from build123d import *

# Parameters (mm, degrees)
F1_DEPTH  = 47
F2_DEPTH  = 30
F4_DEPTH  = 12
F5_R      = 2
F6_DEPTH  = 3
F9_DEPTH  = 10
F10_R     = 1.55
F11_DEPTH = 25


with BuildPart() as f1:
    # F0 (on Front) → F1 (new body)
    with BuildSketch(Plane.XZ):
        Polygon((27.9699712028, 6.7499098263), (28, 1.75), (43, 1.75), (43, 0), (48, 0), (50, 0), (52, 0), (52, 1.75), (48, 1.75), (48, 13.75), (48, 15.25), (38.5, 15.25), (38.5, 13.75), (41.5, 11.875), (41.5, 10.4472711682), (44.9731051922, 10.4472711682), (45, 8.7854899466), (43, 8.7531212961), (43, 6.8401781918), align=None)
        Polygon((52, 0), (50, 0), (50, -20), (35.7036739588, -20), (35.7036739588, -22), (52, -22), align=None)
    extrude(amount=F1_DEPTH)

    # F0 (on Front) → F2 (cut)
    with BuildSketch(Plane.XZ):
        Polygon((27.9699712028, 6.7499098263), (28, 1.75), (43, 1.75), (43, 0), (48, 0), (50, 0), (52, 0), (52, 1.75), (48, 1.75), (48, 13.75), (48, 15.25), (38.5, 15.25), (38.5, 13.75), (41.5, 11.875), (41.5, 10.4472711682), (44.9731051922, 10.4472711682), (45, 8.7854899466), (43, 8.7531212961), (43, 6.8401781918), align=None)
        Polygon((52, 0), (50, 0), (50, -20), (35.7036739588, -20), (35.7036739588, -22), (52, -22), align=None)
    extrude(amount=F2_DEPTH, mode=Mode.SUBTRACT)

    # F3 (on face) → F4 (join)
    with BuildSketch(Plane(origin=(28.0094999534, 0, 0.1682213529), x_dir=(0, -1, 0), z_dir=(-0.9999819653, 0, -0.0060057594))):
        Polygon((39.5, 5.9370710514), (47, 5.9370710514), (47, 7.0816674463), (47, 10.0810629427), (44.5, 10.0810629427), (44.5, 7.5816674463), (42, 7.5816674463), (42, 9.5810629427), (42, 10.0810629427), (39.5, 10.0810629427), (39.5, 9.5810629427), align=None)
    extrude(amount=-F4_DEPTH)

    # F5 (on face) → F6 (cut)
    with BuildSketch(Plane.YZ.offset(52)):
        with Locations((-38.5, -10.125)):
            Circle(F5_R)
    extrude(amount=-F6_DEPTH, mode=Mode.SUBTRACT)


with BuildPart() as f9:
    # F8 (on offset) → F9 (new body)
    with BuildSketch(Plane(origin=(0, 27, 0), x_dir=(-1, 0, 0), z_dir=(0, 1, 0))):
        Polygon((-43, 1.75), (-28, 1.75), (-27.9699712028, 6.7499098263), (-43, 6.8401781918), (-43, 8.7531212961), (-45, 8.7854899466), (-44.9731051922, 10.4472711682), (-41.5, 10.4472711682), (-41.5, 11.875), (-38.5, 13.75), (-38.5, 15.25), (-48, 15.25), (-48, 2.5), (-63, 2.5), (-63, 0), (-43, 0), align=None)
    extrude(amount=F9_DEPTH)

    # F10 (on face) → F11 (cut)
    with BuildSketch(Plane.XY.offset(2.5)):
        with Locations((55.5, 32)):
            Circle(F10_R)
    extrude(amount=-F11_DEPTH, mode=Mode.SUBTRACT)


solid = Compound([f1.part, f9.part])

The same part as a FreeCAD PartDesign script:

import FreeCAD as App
import Part
import Sketcher

doc = App.newDocument("Part")
body = doc.addObject("PartDesign::Body", "Body")

sketch1 = body.newObject("Sketcher::SketchObject", "Sketch")
sketch1.AttachmentSupport = (doc.getObject("XZ_Plane"), [""])
sketch1.MapMode = "FlatFace"
sketch1.addGeometry(Part.LineSegment(App.Vector(27.969971, 6.74991, 0), App.Vector(28, 1.75, 0)), False)
sketch1.addGeometry(Part.LineSegment(App.Vector(28, 1.75, 0), App.Vector(43, 1.75, 0)), False)
sketch1.addGeometry(Part.LineSegment(App.Vector(43, 1.75, 0), App.Vector(43, 0, 0)), False)
sketch1.addGeometry(Part.LineSegment(App.Vector(43, 0, 0), App.Vector(50, 0, 0)), False)
sketch1.addGeometry(Part.LineSegment(App.Vector(50, 0, 0), App.Vector(50, -20, 0)), False)
sketch1.addGeometry(Part.LineSegment(App.Vector(50, -20, 0), App.Vector(35.703674, -20, 0)), False)
sketch1.addGeometry(Part.LineSegment(App.Vector(35.703674, -20, 0), App.Vector(35.703674, -22, 0)), False)
sketch1.addGeometry(Part.LineSegment(App.Vector(35.703674, -22, 0), App.Vector(52, -22, 0)), False)
sketch1.addGeometry(Part.LineSegment(App.Vector(52, -22, 0), App.Vector(52, 1.75, 0)), False)
sketch1.addGeometry(Part.LineSegment(App.Vector(52, 1.75, 0), App.Vector(48, 1.75, 0)), False)
sketch1.addGeometry(Part.LineSegment(App.Vector(48, 1.75, 0), App.Vector(48, 15.25, 0)), False)
sketch1.addGeometry(Part.LineSegment(App.Vector(48, 15.25, 0), App.Vector(38.5, 15.25, 0)), False)
sketch1.addGeometry(Part.LineSegment(App.Vector(38.5, 15.25, 0), App.Vector(38.5, 13.75, 0)), False)
sketch1.addGeometry(Part.LineSegment(App.Vector(38.5, 13.75, 0), App.Vector(41.5, 11.875, 0)), False)
sketch1.addGeometry(Part.LineSegment(App.Vector(41.5, 11.875, 0), App.Vector(41.5, 10.447271, 0)), False)
sketch1.addGeometry(Part.LineSegment(App.Vector(41.5, 10.447271, 0), App.Vector(44.973105, 10.447271, 0)), False)
sketch1.addGeometry(Part.LineSegment(App.Vector(44.973105, 10.447271, 0), App.Vector(45, 8.78549, 0)), False)
sketch1.addGeometry(Part.LineSegment(App.Vector(45, 8.78549, 0), App.Vector(43, 8.753121, 0)), False)
sketch1.addGeometry(Part.LineSegment(App.Vector(43, 8.753121, 0), App.Vector(43, 6.840178, 0)), False)
sketch1.addGeometry(Part.LineSegment(App.Vector(43, 6.840178, 0), App.Vector(27.969971, 6.74991, 0)), False)
sketch1.addConstraint(Sketcher.Constraint("Coincident", 0, 2, 1, 1))
sketch1.addConstraint(Sketcher.Constraint("Coincident", 1, 2, 2, 1))
sketch1.addConstraint(Sketcher.Constraint("Coincident", 2, 2, 3, 1))
sketch1.addConstraint(Sketcher.Constraint("Coincident", 3, 2, 4, 1))
sketch1.addConstraint(Sketcher.Constraint("Coincident", 4, 2, 5, 1))
sketch1.addConstraint(Sketcher.Constraint("Coincident", 5, 2, 6, 1))
sketch1.addConstraint(Sketcher.Constraint("Coincident", 6, 2, 7, 1))
sketch1.addConstraint(Sketcher.Constraint("Coincident", 7, 2, 8, 1))
sketch1.addConstraint(Sketcher.Constraint("Coincident", 8, 2, 9, 1))
sketch1.addConstraint(Sketcher.Constraint("Coincident", 9, 2, 10, 1))
sketch1.addConstraint(Sketcher.Constraint("Coincident", 10, 2, 11, 1))
sketch1.addConstraint(Sketcher.Constraint("Coincident", 11, 2, 12, 1))
sketch1.addConstraint(Sketcher.Constraint("Coincident", 12, 2, 13, 1))
sketch1.addConstraint(Sketcher.Constraint("Coincident", 13, 2, 14, 1))
sketch1.addConstraint(Sketcher.Constraint("Coincident", 14, 2, 15, 1))
sketch1.addConstraint(Sketcher.Constraint("Coincident", 15, 2, 16, 1))
sketch1.addConstraint(Sketcher.Constraint("Coincident", 16, 2, 17, 1))
sketch1.addConstraint(Sketcher.Constraint("Coincident", 17, 2, 18, 1))
sketch1.addConstraint(Sketcher.Constraint("Coincident", 18, 2, 19, 1))
sketch1.addConstraint(Sketcher.Constraint("Coincident", 19, 2, 0, 1))
sketch1.addConstraint(Sketcher.Constraint("Horizontal", 1))
sketch1.addConstraint(Sketcher.Constraint("Vertical", 2))
sketch1.addConstraint(Sketcher.Constraint("Horizontal", 3))
sketch1.addConstraint(Sketcher.Constraint("Vertical", 4))
sketch1.addConstraint(Sketcher.Constraint("Horizontal", 5))
sketch1.addConstraint(Sketcher.Constraint("Vertical", 6))
sketch1.addConstraint(Sketcher.Constraint("Horizontal", 7))
sketch1.addConstraint(Sketcher.Constraint("Vertical", 8))
sketch1.addConstraint(Sketcher.Constraint("Horizontal", 9))
sketch1.addConstraint(Sketcher.Constraint("Vertical", 10))
sketch1.addConstraint(Sketcher.Constraint("Horizontal", 11))
sketch1.addConstraint(Sketcher.Constraint("Vertical", 12))
sketch1.addConstraint(Sketcher.Constraint("Vertical", 14))
sketch1.addConstraint(Sketcher.Constraint("Horizontal", 15))
sketch1.addConstraint(Sketcher.Constraint("Vertical", 18))
sketch1.addConstraint(Sketcher.Constraint("PointOnObject", 2, 2, -1))
sketch1.addConstraint(Sketcher.Constraint("Perpendicular", 16, 17))
sketch1.addConstraint(Sketcher.Constraint("Perpendicular", 0, 19))
sketch1.addConstraint(Sketcher.Constraint("Horizontal", 1, 2, 8, 2))
sketch1.addConstraint(Sketcher.Constraint("Vertical", 2, 2, 17, 2))
sketch1.addConstraint(Sketcher.Constraint("DistanceX", 1, 1, 1, 2, 15.0))
sketch1.addConstraint(Sketcher.Constraint("DistanceX", 3, 1, 3, 2, 7.0))
sketch1.addConstraint(Sketcher.Constraint("DistanceX", 9, 2, 9, 1, 4.0))
sketch1.addConstraint(Sketcher.Constraint("DistanceY", 4, 2, 4, 1, 20.0))
sketch1.addConstraint(Sketcher.Constraint("DistanceY", 6, 2, 6, 1, 2.0))
sketch1.addConstraint(Sketcher.Constraint("Distance", 0, 5.0))
sketch1.addConstraint(Sketcher.Constraint("DistanceX", 11, 2, 11, 1, 9.5))
sketch1.addConstraint(Sketcher.Constraint("DistanceY", 10, 1, 10, 2, 13.5))
sketch1.addConstraint(Sketcher.Constraint("DistanceY", 12, 2, 12, 1, 1.5))
sketch1.addConstraint(Sketcher.Constraint("DistanceX", -1, 1, 0, 2, 28.0))
sketch1.addConstraint(Sketcher.Constraint("DistanceX", -1, 1, 7, 2, 52.0))
sketch1.addConstraint(Sketcher.Constraint("DistanceX", -1, 1, 16, 2, 45.0))
sketch1.addConstraint(Sketcher.Constraint("DistanceX", 12, 2, 13, 2, 3.0))
sketch1.addConstraint(Sketcher.Constraint("DistanceY", 2, 2, 2, 1, 1.75))
sketch1.addConstraint(Sketcher.Constraint("Distance", 16, 1.661999))
sketch1.addConstraint(Sketcher.Constraint("DistanceY", -1, 1, 13, 2, 11.875))
sketch1.addConstraint(Sketcher.Constraint("Distance", 19, 15.0303))
sketch1.addConstraint(Sketcher.Constraint("DistanceY", 14, 2, 14, 1, 1.427729))
sketch1.addConstraint(Sketcher.Constraint("Distance", 17, 2.000262))
sketch1.addConstraint(Sketcher.Constraint("DistanceX", 5, 2, 5, 1, 14.296326))
pad1 = body.newObject("PartDesign::Pad", "Pad")
pad1.Profile = sketch1
pad1.Length = 47

sketch2 = body.newObject("Sketcher::SketchObject", "Sketch001")
sketch2.AttachmentSupport = (doc.getObject("XZ_Plane"), [""])
sketch2.MapMode = "FlatFace"
sketch2.addGeometry(Part.LineSegment(App.Vector(27.969971, 6.74991, 0), App.Vector(28, 1.75, 0)), False)
sketch2.addGeometry(Part.LineSegment(App.Vector(28, 1.75, 0), App.Vector(43, 1.75, 0)), False)
sketch2.addGeometry(Part.LineSegment(App.Vector(43, 1.75, 0), App.Vector(43, 0, 0)), False)
sketch2.addGeometry(Part.LineSegment(App.Vector(43, 0, 0), App.Vector(50, 0, 0)), False)
sketch2.addGeometry(Part.LineSegment(App.Vector(50, 0, 0), App.Vector(50, -20, 0)), False)
sketch2.addGeometry(Part.LineSegment(App.Vector(50, -20, 0), App.Vector(35.703674, -20, 0)), False)
sketch2.addGeometry(Part.LineSegment(App.Vector(35.703674, -20, 0), App.Vector(35.703674, -22, 0)), False)
sketch2.addGeometry(Part.LineSegment(App.Vector(35.703674, -22, 0), App.Vector(52, -22, 0)), False)
sketch2.addGeometry(Part.LineSegment(App.Vector(52, -22, 0), App.Vector(52, 1.75, 0)), False)
sketch2.addGeometry(Part.LineSegment(App.Vector(52, 1.75, 0), App.Vector(48, 1.75, 0)), False)
sketch2.addGeometry(Part.LineSegment(App.Vector(48, 1.75, 0), App.Vector(48, 15.25, 0)), False)
sketch2.addGeometry(Part.LineSegment(App.Vector(48, 15.25, 0), App.Vector(38.5, 15.25, 0)), False)
sketch2.addGeometry(Part.LineSegment(App.Vector(38.5, 15.25, 0), App.Vector(38.5, 13.75, 0)), False)
sketch2.addGeometry(Part.LineSegment(App.Vector(38.5, 13.75, 0), App.Vector(41.5, 11.875, 0)), False)
sketch2.addGeometry(Part.LineSegment(App.Vector(41.5, 11.875, 0), App.Vector(41.5, 10.447271, 0)), False)
sketch2.addGeometry(Part.LineSegment(App.Vector(41.5, 10.447271, 0), App.Vector(44.973105, 10.447271, 0)), False)
sketch2.addGeometry(Part.LineSegment(App.Vector(44.973105, 10.447271, 0), App.Vector(45, 8.78549, 0)), False)
sketch2.addGeometry(Part.LineSegment(App.Vector(45, 8.78549, 0), App.Vector(43, 8.753121, 0)), False)
sketch2.addGeometry(Part.LineSegment(App.Vector(43, 8.753121, 0), App.Vector(43, 6.840178, 0)), False)
sketch2.addGeometry(Part.LineSegment(App.Vector(43, 6.840178, 0), App.Vector(27.969971, 6.74991, 0)), False)
sketch2.addConstraint(Sketcher.Constraint("Coincident", 0, 2, 1, 1))
sketch2.addConstraint(Sketcher.Constraint("Coincident", 1, 2, 2, 1))
sketch2.addConstraint(Sketcher.Constraint("Coincident", 2, 2, 3, 1))
sketch2.addConstraint(Sketcher.Constraint("Coincident", 3, 2, 4, 1))
sketch2.addConstraint(Sketcher.Constraint("Coincident", 4, 2, 5, 1))
sketch2.addConstraint(Sketcher.Constraint("Coincident", 5, 2, 6, 1))
sketch2.addConstraint(Sketcher.Constraint("Coincident", 6, 2, 7, 1))
sketch2.addConstraint(Sketcher.Constraint("Coincident", 7, 2, 8, 1))
sketch2.addConstraint(Sketcher.Constraint("Coincident", 8, 2, 9, 1))
sketch2.addConstraint(Sketcher.Constraint("Coincident", 9, 2, 10, 1))
sketch2.addConstraint(Sketcher.Constraint("Coincident", 10, 2, 11, 1))
sketch2.addConstraint(Sketcher.Constraint("Coincident", 11, 2, 12, 1))
sketch2.addConstraint(Sketcher.Constraint("Coincident", 12, 2, 13, 1))
sketch2.addConstraint(Sketcher.Constraint("Coincident", 13, 2, 14, 1))
sketch2.addConstraint(Sketcher.Constraint("Coincident", 14, 2, 15, 1))
sketch2.addConstraint(Sketcher.Constraint("Coincident", 15, 2, 16, 1))
sketch2.addConstraint(Sketcher.Constraint("Coincident", 16, 2, 17, 1))
sketch2.addConstraint(Sketcher.Constraint("Coincident", 17, 2, 18, 1))
sketch2.addConstraint(Sketcher.Constraint("Coincident", 18, 2, 19, 1))
sketch2.addConstraint(Sketcher.Constraint("Coincident", 19, 2, 0, 1))
sketch2.addConstraint(Sketcher.Constraint("Horizontal", 1))
sketch2.addConstraint(Sketcher.Constraint("Vertical", 2))
sketch2.addConstraint(Sketcher.Constraint("Horizontal", 3))
sketch2.addConstraint(Sketcher.Constraint("Vertical", 4))
sketch2.addConstraint(Sketcher.Constraint("Horizontal", 5))
sketch2.addConstraint(Sketcher.Constraint("Vertical", 6))
sketch2.addConstraint(Sketcher.Constraint("Horizontal", 7))
sketch2.addConstraint(Sketcher.Constraint("Vertical", 8))
sketch2.addConstraint(Sketcher.Constraint("Horizontal", 9))
sketch2.addConstraint(Sketcher.Constraint("Vertical", 10))
sketch2.addConstraint(Sketcher.Constraint("Horizontal", 11))
sketch2.addConstraint(Sketcher.Constraint("Vertical", 12))
sketch2.addConstraint(Sketcher.Constraint("Vertical", 14))
sketch2.addConstraint(Sketcher.Constraint("Horizontal", 15))
sketch2.addConstraint(Sketcher.Constraint("Vertical", 18))
sketch2.addConstraint(Sketcher.Constraint("PointOnObject", 2, 2, -1))
sketch2.addConstraint(Sketcher.Constraint("Perpendicular", 16, 17))
sketch2.addConstraint(Sketcher.Constraint("Perpendicular", 0, 19))
sketch2.addConstraint(Sketcher.Constraint("Horizontal", 1, 2, 8, 2))
sketch2.addConstraint(Sketcher.Constraint("Vertical", 2, 2, 17, 2))
sketch2.addConstraint(Sketcher.Constraint("DistanceX", 1, 1, 1, 2, 15.0))
sketch2.addConstraint(Sketcher.Constraint("DistanceX", 3, 1, 3, 2, 7.0))
sketch2.addConstraint(Sketcher.Constraint("DistanceX", 9, 2, 9, 1, 4.0))
sketch2.addConstraint(Sketcher.Constraint("DistanceY", 4, 2, 4, 1, 20.0))
sketch2.addConstraint(Sketcher.Constraint("DistanceY", 6, 2, 6, 1, 2.0))
sketch2.addConstraint(Sketcher.Constraint("Distance", 0, 5.0))
sketch2.addConstraint(Sketcher.Constraint("DistanceX", 11, 2, 11, 1, 9.5))
sketch2.addConstraint(Sketcher.Constraint("DistanceY", 10, 1, 10, 2, 13.5))
sketch2.addConstraint(Sketcher.Constraint("DistanceY", 12, 2, 12, 1, 1.5))
sketch2.addConstraint(Sketcher.Constraint("DistanceX", -1, 1, 0, 2, 28.0))
sketch2.addConstraint(Sketcher.Constraint("DistanceX", -1, 1, 7, 2, 52.0))
sketch2.addConstraint(Sketcher.Constraint("DistanceX", -1, 1, 16, 2, 45.0))
sketch2.addConstraint(Sketcher.Constraint("DistanceX", 12, 2, 13, 2, 3.0))
sketch2.addConstraint(Sketcher.Constraint("DistanceY", 2, 2, 2, 1, 1.75))
sketch2.addConstraint(Sketcher.Constraint("Distance", 16, 1.661999))
sketch2.addConstraint(Sketcher.Constraint("DistanceY", -1, 1, 13, 2, 11.875))
sketch2.addConstraint(Sketcher.Constraint("Distance", 19, 15.0303))
sketch2.addConstraint(Sketcher.Constraint("DistanceY", 14, 2, 14, 1, 1.427729))
sketch2.addConstraint(Sketcher.Constraint("Distance", 17, 2.000262))
sketch2.addConstraint(Sketcher.Constraint("DistanceX", 5, 2, 5, 1, 14.296326))
pocket1 = body.newObject("PartDesign::Pocket", "Pocket")
pocket1.Profile = sketch2
pocket1.Length = 30
pocket1.Reversed = True

sketch3 = body.newObject("Sketcher::SketchObject", "Sketch002")
sketch3.Placement = App.Placement(App.Vector(28.0095, 0, 0.168221), App.Rotation(App.Vector(0, -1, 0), App.Vector(-0.006005759, 0, 0.999981965), App.Vector(-0.999981965, 0, -0.006005759), "ZXY"))
sketch3.addGeometry(Part.LineSegment(App.Vector(39.5, 5.9, 0), App.Vector(47, 5.9, 0)), False)
sketch3.addGeometry(Part.LineSegment(App.Vector(47, 5.9, 0), App.Vector(47, 10.1, 0)), False)
sketch3.addGeometry(Part.LineSegment(App.Vector(47, 10.1, 0), App.Vector(44.5, 10.1, 0)), False)
sketch3.addGeometry(Part.LineSegment(App.Vector(44.5, 10.1, 0), App.Vector(44.5, 7.6, 0)), False)
sketch3.addGeometry(Part.LineSegment(App.Vector(44.5, 7.6, 0), App.Vector(42, 7.6, 0)), False)
sketch3.addGeometry(Part.LineSegment(App.Vector(42, 7.6, 0), App.Vector(42, 10.1, 0)), False)
sketch3.addGeometry(Part.LineSegment(App.Vector(42, 10.1, 0), App.Vector(39.5, 10.1, 0)), False)
sketch3.addGeometry(Part.LineSegment(App.Vector(39.5, 10.1, 0), App.Vector(39.5, 5.9, 0)), False)
sketch3.addConstraint(Sketcher.Constraint("Coincident", 0, 2, 1, 1))
sketch3.addConstraint(Sketcher.Constraint("Coincident", 1, 2, 2, 1))
sketch3.addConstraint(Sketcher.Constraint("Coincident", 2, 2, 3, 1))
sketch3.addConstraint(Sketcher.Constraint("Coincident", 3, 2, 4, 1))
sketch3.addConstraint(Sketcher.Constraint("Coincident", 4, 2, 5, 1))
sketch3.addConstraint(Sketcher.Constraint("Coincident", 5, 2, 6, 1))
sketch3.addConstraint(Sketcher.Constraint("Coincident", 6, 2, 7, 1))
sketch3.addConstraint(Sketcher.Constraint("Coincident", 7, 2, 0, 1))
sketch3.addConstraint(Sketcher.Constraint("Horizontal", 0))
sketch3.addConstraint(Sketcher.Constraint("Vertical", 1))
sketch3.addConstraint(Sketcher.Constraint("Horizontal", 2))
sketch3.addConstraint(Sketcher.Constraint("Vertical", 3))
sketch3.addConstraint(Sketcher.Constraint("Horizontal", 4))
sketch3.addConstraint(Sketcher.Constraint("Vertical", 5))
sketch3.addConstraint(Sketcher.Constraint("Horizontal", 6))
sketch3.addConstraint(Sketcher.Constraint("Vertical", 7))
sketch3.addConstraint(Sketcher.Constraint("Horizontal", 2, 2, 5, 2))
sketch3.addConstraint(Sketcher.Constraint("Equal", 2, 4))
sketch3.addConstraint(Sketcher.Constraint("Equal", 4, 6))
sketch3.addConstraint(Sketcher.Constraint("DistanceX", 0, 1, 0, 2, 7.5))
sketch3.addConstraint(Sketcher.Constraint("DistanceX", -1, 1, 0, 2, 47.0))
sketch3.addConstraint(Sketcher.Constraint("DistanceY", 1, 1, 1, 2, 4.143992))
sketch3.addConstraint(Sketcher.Constraint("DistanceY", 3, 2, 3, 1, 2.499395))
sketch3.addConstraint(Sketcher.Constraint("DistanceY", -1, 1, 0, 2, 5.937071))
pad2 = body.newObject("PartDesign::Pad", "Pad001")
pad2.Profile = sketch3
pad2.Length = 12
pad2.Reversed = True

sketch4 = body.newObject("Sketcher::SketchObject", "Sketch003")
sketch4.AttachmentSupport = (doc.getObject("YZ_Plane"), [""])
sketch4.MapMode = "FlatFace"
sketch4.AttachmentOffset = App.Placement(App.Vector(0, 0, 52), App.Rotation())
sketch4.addGeometry(Part.Circle(App.Vector(-38.5, -10.1, 0), App.Vector(0, 0, 1), 2), False)
sketch4.addConstraint(Sketcher.Constraint("Diameter", 0, 4.0))
sketch4.addConstraint(Sketcher.Constraint("DistanceX", 0, 3, -1, 1, 38.5))
sketch4.addConstraint(Sketcher.Constraint("DistanceY", 0, 3, -1, 1, 10.125))
pocket2 = body.newObject("PartDesign::Pocket", "Pocket001")
pocket2.Profile = sketch4
pocket2.Length = 3
body2 = doc.addObject("PartDesign::Body", "Body001")

sketch5 = body2.newObject("Sketcher::SketchObject", "Sketch004")
sketch5.AttachmentSupport = (doc.getObject("XZ_Plane001"), [""])
sketch5.MapMode = "FlatFace"
sketch5.AttachmentOffset = App.Placement(App.Vector(0, 0, -27), App.Rotation())
sketch5.addGeometry(Part.LineSegment(App.Vector(43, 1.75, 0), App.Vector(28, 1.75, 0)), False)
sketch5.addGeometry(Part.LineSegment(App.Vector(28, 1.75, 0), App.Vector(27.969971, 6.74991, 0)), False)
sketch5.addGeometry(Part.LineSegment(App.Vector(27.969971, 6.74991, 0), App.Vector(43, 6.840178, 0)), False)
sketch5.addGeometry(Part.LineSegment(App.Vector(43, 6.840178, 0), App.Vector(43, 8.753121, 0)), False)
sketch5.addGeometry(Part.LineSegment(App.Vector(43, 8.753121, 0), App.Vector(45, 8.78549, 0)), False)
sketch5.addGeometry(Part.LineSegment(App.Vector(45, 8.78549, 0), App.Vector(44.973105, 10.447271, 0)), False)
sketch5.addGeometry(Part.LineSegment(App.Vector(44.973105, 10.447271, 0), App.Vector(41.5, 10.447271, 0)), False)
sketch5.addGeometry(Part.LineSegment(App.Vector(41.5, 10.447271, 0), App.Vector(41.5, 11.875, 0)), False)
sketch5.addGeometry(Part.LineSegment(App.Vector(41.5, 11.875, 0), App.Vector(38.5, 13.75, 0)), False)
sketch5.addGeometry(Part.LineSegment(App.Vector(38.5, 13.75, 0), App.Vector(38.5, 15.25, 0)), False)
sketch5.addGeometry(Part.LineSegment(App.Vector(38.5, 15.25, 0), App.Vector(48, 15.25, 0)), False)
sketch5.addGeometry(Part.LineSegment(App.Vector(48, 15.25, 0), App.Vector(48, 2.5, 0)), False)
sketch5.addGeometry(Part.LineSegment(App.Vector(48, 2.5, 0), App.Vector(63, 2.5, 0)), False)
sketch5.addGeometry(Part.LineSegment(App.Vector(63, 2.5, 0), App.Vector(63, 0, 0)), False)
sketch5.addGeometry(Part.LineSegment(App.Vector(63, 0, 0), App.Vector(43, 0, 0)), False)
sketch5.addGeometry(Part.LineSegment(App.Vector(43, 0, 0), App.Vector(43, 1.75, 0)), False)
sketch5.addConstraint(Sketcher.Constraint("Coincident", 0, 2, 1, 1))
sketch5.addConstraint(Sketcher.Constraint("Coincident", 1, 2, 2, 1))
sketch5.addConstraint(Sketcher.Constraint("Coincident", 2, 2, 3, 1))
sketch5.addConstraint(Sketcher.Constraint("Coincident", 3, 2, 4, 1))
sketch5.addConstraint(Sketcher.Constraint("Coincident", 4, 2, 5, 1))
sketch5.addConstraint(Sketcher.Constraint("Coincident", 5, 2, 6, 1))
sketch5.addConstraint(Sketcher.Constraint("Coincident", 6, 2, 7, 1))
sketch5.addConstraint(Sketcher.Constraint("Coincident", 7, 2, 8, 1))
sketch5.addConstraint(Sketcher.Constraint("Coincident", 8, 2, 9, 1))
sketch5.addConstraint(Sketcher.Constraint("Coincident", 9, 2, 10, 1))
sketch5.addConstraint(Sketcher.Constraint("Coincident", 10, 2, 11, 1))
sketch5.addConstraint(Sketcher.Constraint("Coincident", 11, 2, 12, 1))
sketch5.addConstraint(Sketcher.Constraint("Coincident", 12, 2, 13, 1))
sketch5.addConstraint(Sketcher.Constraint("Coincident", 13, 2, 14, 1))
sketch5.addConstraint(Sketcher.Constraint("Coincident", 14, 2, 15, 1))
sketch5.addConstraint(Sketcher.Constraint("Coincident", 15, 2, 0, 1))
sketch5.addConstraint(Sketcher.Constraint("Horizontal", 0))
sketch5.addConstraint(Sketcher.Constraint("Vertical", 3))
sketch5.addConstraint(Sketcher.Constraint("Horizontal", 6))
sketch5.addConstraint(Sketcher.Constraint("Vertical", 7))
sketch5.addConstraint(Sketcher.Constraint("Vertical", 9))
sketch5.addConstraint(Sketcher.Constraint("Horizontal", 10))
sketch5.addConstraint(Sketcher.Constraint("Vertical", 11))
sketch5.addConstraint(Sketcher.Constraint("Horizontal", 12))
sketch5.addConstraint(Sketcher.Constraint("Vertical", 13))
sketch5.addConstraint(Sketcher.Constraint("Horizontal", 14))
sketch5.addConstraint(Sketcher.Constraint("Vertical", 15))
sketch5.addConstraint(Sketcher.Constraint("PointOnObject", 13, 2, -1))
sketch5.addConstraint(Sketcher.Constraint("Perpendicular", 1, 2))
sketch5.addConstraint(Sketcher.Constraint("Perpendicular", 4, 5))
sketch5.addConstraint(Sketcher.Constraint("Vertical", 3, 2, 14, 2))
sketch5.addConstraint(Sketcher.Constraint("Equal", 0, 12))
sketch5.addConstraint(Sketcher.Constraint("DistanceX", 0, 2, 0, 1, 15.0))
sketch5.addConstraint(Sketcher.Constraint("DistanceX", 14, 2, 14, 1, 20.0))
sketch5.addConstraint(Sketcher.Constraint("Distance", 1, 5.0))
sketch5.addConstraint(Sketcher.Constraint("DistanceX", 10, 1, 10, 2, 9.5))
sketch5.addConstraint(Sketcher.Constraint("DistanceY", 9, 1, 9, 2, 1.5))
sketch5.addConstraint(Sketcher.Constraint("DistanceY", 13, 2, 13, 1, 2.5))
sketch5.addConstraint(Sketcher.Constraint("DistanceX", -1, 1, 0, 2, 28.0))
sketch5.addConstraint(Sketcher.Constraint("DistanceX", -1, 1, 4, 2, 45.0))
sketch5.addConstraint(Sketcher.Constraint("DistanceX", 8, 2, 7, 2, 3.0))
sketch5.addConstraint(Sketcher.Constraint("DistanceY", 11, 2, 11, 1, 12.75))
sketch5.addConstraint(Sketcher.Constraint("DistanceY", 15, 1, 15, 2, 1.75))
sketch5.addConstraint(Sketcher.Constraint("Distance", 5, 1.661999))
sketch5.addConstraint(Sketcher.Constraint("DistanceY", -1, 1, 7, 2, 11.875))
sketch5.addConstraint(Sketcher.Constraint("Distance", 2, 15.0303))
sketch5.addConstraint(Sketcher.Constraint("DistanceY", 7, 1, 7, 2, 1.427729))
sketch5.addConstraint(Sketcher.Constraint("Distance", 4, 2.000262))
pad3 = body2.newObject("PartDesign::Pad", "Pad002")
pad3.Profile = sketch5
pad3.Length = 10
pad3.Reversed = True

sketch6 = body2.newObject("Sketcher::SketchObject", "Sketch005")
sketch6.AttachmentSupport = (doc.getObject("XY_Plane001"), [""])
sketch6.MapMode = "FlatFace"
sketch6.AttachmentOffset = App.Placement(App.Vector(0, 0, 2.5), App.Rotation())
sketch6.addGeometry(Part.Circle(App.Vector(55.5, 32, 0), App.Vector(0, 0, 1), 1.6), False)
sketch6.addConstraint(Sketcher.Constraint("Diameter", 0, 3.1))
sketch6.addConstraint(Sketcher.Constraint("DistanceY", -1, 1, 0, 3, 32.0))
sketch6.addConstraint(Sketcher.Constraint("DistanceX", -1, 1, 0, 3, 55.5))
pocket3 = body2.newObject("PartDesign::Pocket", "Pocket002")
pocket3.Profile = sketch6
pocket3.Length = 25

doc.recompute()
